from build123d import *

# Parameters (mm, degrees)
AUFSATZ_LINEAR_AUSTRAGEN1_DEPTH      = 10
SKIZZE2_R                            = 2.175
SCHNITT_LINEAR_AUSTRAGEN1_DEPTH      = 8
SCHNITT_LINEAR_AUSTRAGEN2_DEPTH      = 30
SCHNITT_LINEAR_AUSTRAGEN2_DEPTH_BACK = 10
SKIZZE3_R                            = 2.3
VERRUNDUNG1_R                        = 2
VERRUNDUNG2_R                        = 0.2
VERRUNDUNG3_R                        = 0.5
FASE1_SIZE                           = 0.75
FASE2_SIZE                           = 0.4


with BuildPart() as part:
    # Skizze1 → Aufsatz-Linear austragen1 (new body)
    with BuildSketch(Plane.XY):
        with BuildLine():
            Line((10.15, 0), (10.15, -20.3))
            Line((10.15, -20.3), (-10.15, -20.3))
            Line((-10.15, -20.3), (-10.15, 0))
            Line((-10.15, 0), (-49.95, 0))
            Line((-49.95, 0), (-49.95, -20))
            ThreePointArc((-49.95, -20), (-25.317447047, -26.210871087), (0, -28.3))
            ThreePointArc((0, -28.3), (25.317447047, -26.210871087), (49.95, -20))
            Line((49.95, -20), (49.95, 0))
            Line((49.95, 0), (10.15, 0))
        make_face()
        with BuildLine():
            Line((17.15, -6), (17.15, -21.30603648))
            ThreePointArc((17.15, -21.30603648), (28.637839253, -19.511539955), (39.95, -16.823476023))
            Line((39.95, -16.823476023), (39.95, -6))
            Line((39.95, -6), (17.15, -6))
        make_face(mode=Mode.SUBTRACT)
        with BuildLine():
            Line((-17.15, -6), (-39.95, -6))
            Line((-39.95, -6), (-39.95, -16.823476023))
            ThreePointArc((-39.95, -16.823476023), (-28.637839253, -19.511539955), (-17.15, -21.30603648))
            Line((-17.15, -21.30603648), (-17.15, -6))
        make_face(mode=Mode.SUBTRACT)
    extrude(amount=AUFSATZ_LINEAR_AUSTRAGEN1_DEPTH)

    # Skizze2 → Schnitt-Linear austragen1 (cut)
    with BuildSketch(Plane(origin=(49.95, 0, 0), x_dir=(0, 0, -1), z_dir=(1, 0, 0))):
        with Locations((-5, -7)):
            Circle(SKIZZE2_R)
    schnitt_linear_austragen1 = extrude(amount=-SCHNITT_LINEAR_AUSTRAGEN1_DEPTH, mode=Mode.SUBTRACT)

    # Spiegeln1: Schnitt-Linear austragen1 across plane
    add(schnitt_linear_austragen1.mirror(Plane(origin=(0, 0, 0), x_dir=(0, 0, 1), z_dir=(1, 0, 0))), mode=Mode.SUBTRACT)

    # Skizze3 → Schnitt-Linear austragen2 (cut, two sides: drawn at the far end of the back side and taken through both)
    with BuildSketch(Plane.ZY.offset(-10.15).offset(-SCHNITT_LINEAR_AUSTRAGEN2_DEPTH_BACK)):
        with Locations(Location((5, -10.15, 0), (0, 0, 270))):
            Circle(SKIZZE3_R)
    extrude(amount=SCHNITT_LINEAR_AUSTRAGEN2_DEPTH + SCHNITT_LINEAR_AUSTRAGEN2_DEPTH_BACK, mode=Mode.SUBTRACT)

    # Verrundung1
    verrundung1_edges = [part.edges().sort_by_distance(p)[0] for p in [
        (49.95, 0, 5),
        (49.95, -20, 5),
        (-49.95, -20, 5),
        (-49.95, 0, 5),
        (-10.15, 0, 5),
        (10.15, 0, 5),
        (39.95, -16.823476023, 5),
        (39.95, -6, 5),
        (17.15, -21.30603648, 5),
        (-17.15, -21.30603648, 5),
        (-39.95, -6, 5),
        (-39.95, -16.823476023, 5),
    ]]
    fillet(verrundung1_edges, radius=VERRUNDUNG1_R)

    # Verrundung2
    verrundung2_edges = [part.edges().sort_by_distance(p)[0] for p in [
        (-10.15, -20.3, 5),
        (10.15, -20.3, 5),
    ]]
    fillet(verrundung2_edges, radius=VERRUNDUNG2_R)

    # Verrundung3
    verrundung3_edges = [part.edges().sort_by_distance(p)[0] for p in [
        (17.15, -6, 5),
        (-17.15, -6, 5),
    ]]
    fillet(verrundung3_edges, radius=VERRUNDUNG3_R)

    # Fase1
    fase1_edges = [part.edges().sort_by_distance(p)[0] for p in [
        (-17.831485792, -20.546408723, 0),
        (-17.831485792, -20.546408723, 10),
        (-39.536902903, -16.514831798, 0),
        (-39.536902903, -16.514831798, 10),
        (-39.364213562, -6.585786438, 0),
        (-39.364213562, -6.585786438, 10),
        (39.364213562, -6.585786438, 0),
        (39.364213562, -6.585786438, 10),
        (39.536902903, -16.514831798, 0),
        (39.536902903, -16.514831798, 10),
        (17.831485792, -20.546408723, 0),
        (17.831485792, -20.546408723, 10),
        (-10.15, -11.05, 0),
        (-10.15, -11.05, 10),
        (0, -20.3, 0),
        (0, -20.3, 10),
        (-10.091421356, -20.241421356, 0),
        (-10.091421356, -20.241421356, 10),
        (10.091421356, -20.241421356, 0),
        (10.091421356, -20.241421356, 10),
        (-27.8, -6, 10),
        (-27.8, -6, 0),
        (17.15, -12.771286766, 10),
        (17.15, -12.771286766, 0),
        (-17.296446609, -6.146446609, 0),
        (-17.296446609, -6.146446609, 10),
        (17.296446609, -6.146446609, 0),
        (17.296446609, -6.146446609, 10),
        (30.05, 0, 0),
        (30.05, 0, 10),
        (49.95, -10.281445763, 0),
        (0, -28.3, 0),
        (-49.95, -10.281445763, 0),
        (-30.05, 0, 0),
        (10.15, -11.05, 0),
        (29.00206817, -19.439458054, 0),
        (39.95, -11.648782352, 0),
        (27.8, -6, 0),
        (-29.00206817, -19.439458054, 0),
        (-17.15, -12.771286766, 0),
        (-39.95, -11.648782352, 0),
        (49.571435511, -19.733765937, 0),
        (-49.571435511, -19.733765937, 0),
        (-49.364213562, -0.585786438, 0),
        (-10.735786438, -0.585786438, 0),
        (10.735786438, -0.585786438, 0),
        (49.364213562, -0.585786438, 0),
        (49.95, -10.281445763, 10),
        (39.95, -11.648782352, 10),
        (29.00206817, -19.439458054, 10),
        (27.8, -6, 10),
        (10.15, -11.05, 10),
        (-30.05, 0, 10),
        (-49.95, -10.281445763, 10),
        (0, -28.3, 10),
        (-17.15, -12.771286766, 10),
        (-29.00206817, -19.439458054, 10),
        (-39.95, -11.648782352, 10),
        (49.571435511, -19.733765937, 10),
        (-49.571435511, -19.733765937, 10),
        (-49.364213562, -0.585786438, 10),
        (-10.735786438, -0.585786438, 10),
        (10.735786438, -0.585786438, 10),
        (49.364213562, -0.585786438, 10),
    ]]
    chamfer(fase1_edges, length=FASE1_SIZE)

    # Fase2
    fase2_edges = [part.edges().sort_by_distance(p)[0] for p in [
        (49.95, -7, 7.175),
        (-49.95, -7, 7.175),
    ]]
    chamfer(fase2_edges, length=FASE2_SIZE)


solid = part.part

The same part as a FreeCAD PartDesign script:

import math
import FreeCAD as App
import Part
import Sketcher
from FreeCAD import Vector


def edges_at(feature, points):
    """Names of the edges that pass closest to the given points."""
    edges = feature.Shape.Edges
    near = lambda p: min(range(len(edges)), key=lambda i: edges[i].distToShape(Part.Vertex(*p))[0])
    return sorted({f"Edge{near(p) + 1}" for p in points})

doc = App.newDocument("Part")
body = doc.addObject("PartDesign::Body", "Body")

# Sketch on XY plane
sketch1 = body.newObject("Sketcher::SketchObject", "Sketch")
sketch1.AttachmentSupport = (doc.getObject("XY_Plane"), [""])
sketch1.MapMode = "FlatFace"
sketch1.addGeometry([
    Part.LineSegment(Vector(10, 0, 0), Vector(10, -20, 0)),  # 0
    Part.LineSegment(Vector(10, -20, 0), Vector(-10, -20, 0)),  # 1
    Part.LineSegment(Vector(-10, -20, 0), Vector(-10, 0, 0)),  # 2
    Part.LineSegment(Vector(-10, 0, 0), Vector(-50, 0, 0)),  # 3
    Part.LineSegment(Vector(-50, 0, 0), Vector(-50, -20, 0)),  # 4
    Part.ArcOfCircle(Part.Circle(Vector(0, 126, 0), Vector(0, 0, 1), 154), math.radians(-108.87), math.radians(-90)),  # 5
    Part.ArcOfCircle(Part.Circle(Vector(0, 126, 0), Vector(0, 0, 1), 154), math.radians(-90), math.radians(-71.13)),  # 6
    Part.LineSegment(Vector(50, -20, 0), Vector(50, 0, 0)),  # 7
    Part.LineSegment(Vector(50, 0, 0), Vector(10, 0, 0)),  # 8
    Part.LineSegment(Vector(-40, -6, 0), Vector(-17, -6, 0)),  # 9
    Part.LineSegment(Vector(-17, -6, 0), Vector(-17, -21, 0)),  # 10
    Part.ArcOfCircle(Part.Circle(Vector(0, 126, 0), Vector(0, 0, 1), 148), math.radians(-105.61), math.radians(-96.63)),  # 11
    Part.LineSegment(Vector(-40, -17, 0), Vector(-40, -6, 0)),  # 12
    Part.LineSegment(Vector(17, -21, 0), Vector(17, -6, 0)),  # 13
    Part.LineSegment(Vector(17, -6, 0), Vector(40, -6, 0)),  # 14
    Part.LineSegment(Vector(40, -6, 0), Vector(40, -17, 0)),  # 15
    Part.ArcOfCircle(Part.Circle(Vector(0, 126, 0), Vector(0, 0, 1), 148), math.radians(-83.37), math.radians(-74.39)),  # 16
], False)
sketch1.addConstraint([
    Sketcher.Constraint("Coincident", 0, 2, 1, 1),
    Sketcher.Constraint("Coincident", 1, 2, 2, 1),
    Sketcher.Constraint("Coincident", 2, 2, 3, 1),
    Sketcher.Constraint("Coincident", 3, 2, 4, 1),
    Sketcher.Constraint("Coincident", 4, 2, 5, 1),
    Sketcher.Constraint("Tangent", 5, 2, 6, 1),
    Sketcher.Constraint("Coincident", 6, 2, 7, 1),
    Sketcher.Constraint("Coincident", 7, 2, 8, 1),
    Sketcher.Constraint("Coincident", 8, 2, 0, 1),
    Sketcher.Constraint("Coincident", 9, 2, 10, 1),
    Sketcher.Constraint("Coincident", 10, 2, 11, 2),
    Sketcher.Constraint("Coincident", 11, 1, 12, 1),
    Sketcher.Constraint("Coincident", 12, 2, 9, 1),
    Sketcher.Constraint("Coincident", 13, 2, 14, 1),
    Sketcher.Constraint("Coincident", 14, 2, 15, 1),
    Sketcher.Constraint("Coincident", 15, 2, 16, 2),
    Sketcher.Constraint("Coincident", 16, 1, 13, 1),
    Sketcher.Constraint("Vertical", 0),
    Sketcher.Constraint("Horizontal", 1),
    Sketcher.Constraint("Vertical", 2),
    Sketcher.Constraint("Horizontal", 3),
    Sketcher.Constraint("Vertical", 4),
    Sketcher.Constraint("Vertical", 7),
    Sketcher.Constraint("Horizontal", 8),
    Sketcher.Constraint("Horizontal", 9),
    Sketcher.Constraint("Vertical", 10),
    Sketcher.Constraint("Vertical", 12),
    Sketcher.Constraint("Vertical", 13),
    Sketcher.Constraint("Horizontal", 14),
    Sketcher.Constraint("Vertical", 15),
    Sketcher.Constraint("Coincident", 11, 3, 5, 3),
    Sketcher.Constraint("Coincident", 16, 3, 5, 3),
    Sketcher.Constraint("Equal", 5, 6),
    Sketcher.Constraint("Equal", 11, 16),
    Sketcher.Constraint("Symmetric", 3, 2, 7, 2, -1, 1),
    Sketcher.Constraint("Symmetric", 2, 2, 8, 2, -2),
    Sketcher.Constraint("Symmetric", 9, 2, 13, 2, -2),
    Sketcher.Constraint("Symmetric", 11, 1, 15, 2, -2),
    Sketcher.Constraint("PointOnObject", 5, 2, -2),
    Sketcher.Constraint("Equal", 1, 0),
    Sketcher.Constraint("DistanceY", 4, 2, 4, 1, 20.0),
    Sketcher.Constraint("DistanceX", 1, 2, 1, 1, 20.3),
    Sketcher.Constraint("DistanceX", 3, 2, 3, 1, 39.8),
    Sketcher.Constraint("DistanceX", 9, 1, 9, 2, 22.8),
    Sketcher.Constraint("DistanceY", 9, 2, -1, 1, 6.0),
    Sketcher.Constraint("DistanceY", 5, 2, 0, 2, 8.0),
    Sketcher.Constraint("DistanceX", 9, 2, 2, 2, 7.0),
    Sketcher.Constraint("Radius", 11, 148.451355),
])
pad1 = body.newObject("PartDesign::Pad", "Pad")
pad1.Profile = sketch1
pad1.Length = 10

# Sketch on YZ plane
sketch2 = body.newObject("Sketcher::SketchObject", "Sketch001")
sketch2.AttachmentSupport = (doc.getObject("YZ_Plane"), [""])
sketch2.MapMode = "FlatFace"
sketch2.AttachmentOffset = App.Placement(Vector(0, 0, 49.95), App.Rotation())
sketch2.addGeometry(Part.Circle(Vector(-7, 5, 0), Vector(0, 0, 1), 2.2), False)
sketch2.addConstraint([
    Sketcher.Constraint("Diameter", 0, 4.35),
    Sketcher.Constraint("DistanceX", 0, 3, -1, 1, 7.0),
    Sketcher.Constraint("DistanceY", -1, 1, 0, 3, 5.0),
])
pocket1 = body.newObject("PartDesign::Pocket", "Pocket")
pocket1.Profile = sketch2
pocket1.Length = 8
doc.recompute()

mirrored = body.newObject("PartDesign::Mirrored", "Mirrored")
mirrored.Originals = [pocket1]
mirrored.MirrorPlane = (doc.getObject("YZ_Plane"), [""])
body.Tip = mirrored

# Sketch on YZ plane
sketch3 = body.newObject("Sketcher::SketchObject", "Sketch002")
sketch3.AttachmentSupport = (doc.getObject("YZ_Plane"), [""])
sketch3.MapMode = "FlatFace"
sketch3.AttachmentOffset = App.Placement(Vector(0, 0, 10.15), App.Rotation())
sketch3.addGeometry(Part.Circle(Vector(-10.2, 5, 0), Vector(0, 0, 1), 2.3), False)
sketch3.addConstraint([
    Sketcher.Constraint("Diameter", 0, 4.6),
    Sketcher.Constraint("DistanceY", -1, 1, 0, 3, 5.0),
    Sketcher.Constraint("DistanceX", 0, 3, -1, 1, 10.15),
])
pocket2 = body.newObject("PartDesign::Pocket", "Pocket001")
pocket2.Profile = sketch3
pocket2.Type = "TwoLengths"
pocket2.Length = 30
pocket2.Length2 = 10
doc.recompute()

fillet = body.newObject("PartDesign::Fillet", "Fillet")
fillet.Base = (pocket2, edges_at(pocket2, [
    (49.95, 0, 5),
    (49.95, -20, 5),
    (-49.95, -20, 5),
    (-49.95, 0, 5),
    (-10.15, 0, 5),
    (10.15, 0, 5),
    (39.95, -16.823, 5),
    (39.95, -6, 5),
    (17.15, -21.306, 5),
    (-17.15, -21.306, 5),
    (-39.95, -6, 5),
    (-39.95, -16.823, 5),
]))
fillet.Radius = 2
doc.recompute()

fillet2 = body.newObject("PartDesign::Fillet", "Fillet001")
fillet2.Base = (fillet, edges_at(fillet, [(-10.15, -20.3, 5), (10.15, -20.3, 5)]))
fillet2.Radius = 0.2
doc.recompute()

fillet3 = body.newObject("PartDesign::Fillet", "Fillet002")
fillet3.Base = (fillet2, edges_at(fillet2, [(17.15, -6, 5), (-17.15, -6, 5)]))
fillet3.Radius = 0.5
doc.recompute()

chamfer = body.newObject("PartDesign::Chamfer", "Chamfer")
chamfer.Base = (fillet3, edges_at(fillet3, [
    (-17.831, -20.546, 0),
    (-17.831, -20.546, 10),
    (-39.537, -16.515, 0),
    (-39.537, -16.515, 10),
    (-39.364, -6.586, 0),
    (-39.364, -6.586, 10),
    (39.364, -6.586, 0),
    (39.364, -6.586, 10),
    (39.537, -16.515, 0),
    (39.537, -16.515, 10),
    (17.831, -20.546, 0),
    (17.831, -20.546, 10),
    (-10.15, -11.05, 0),
    (-10.15, -11.05, 10),
    (0, -20.3, 0),
    (0, -20.3, 10),
    (-10.091, -20.241, 0),
    (-10.091, -20.241, 10),
    (10.091, -20.241, 0),
    (10.091, -20.241, 10),
    (-27.8, -6, 10),
    (-27.8, -6, 0),
    (17.15, -12.771, 10),
    (17.15, -12.771, 0),
    (-17.296, -6.146, 0),
    (-17.296, -6.146, 10),
    (17.296, -6.146, 0),
    (17.296, -6.146, 10),
    (30.05, 0, 0),
    (30.05, 0, 10),
    (49.95, -10.281, 0),
    (24.604, -26.328, 0),
    (-49.95, -10.281, 0),
    (-30.05, 0, 0),
    (10.15, -11.05, 0),
    (29.002, -19.439, 0),
    (39.95, -11.649, 0),
    (27.8, -6, 0),
    (-29.002, -19.439, 0),
    (-17.15, -12.771, 0),
    (-39.95, -11.649, 0),
    (49.571, -19.734, 0),
    (-49.571, -19.734, 0),
    (-49.364, -0.586, 0),
    (-10.736, -0.586, 0),
    (10.736, -0.586, 0),
    (49.364, -0.586, 0),
    (49.95, -10.281, 10),
    (39.95, -11.649, 10),
    (29.002, -19.439, 10),
    (27.8, -6, 10),
    (10.15, -11.05, 10),
    (-30.05, 0, 10),
    (-49.95, -10.281, 10),
    (0, -28.3, 5),
    (-17.15, -12.771, 10),
    (-29.002, -19.439, 10),
    (-39.95, -11.649, 10),
    (49.571, -19.734, 10),
    (-49.571, -19.734, 10),
    (-49.364, -0.586, 10),
    (-10.736, -0.586, 10),
    (10.736, -0.586, 10),
    (49.364, -0.586, 10),
]))
chamfer.Size = 0.75
doc.recompute()

chamfer2 = body.newObject("PartDesign::Chamfer", "Chamfer001")
chamfer2.Base = (chamfer, edges_at(chamfer, [(49.95, -7, 7.175), (-49.95, -7, 7.175)]))
chamfer2.Size = 0.4

doc.recompute()
